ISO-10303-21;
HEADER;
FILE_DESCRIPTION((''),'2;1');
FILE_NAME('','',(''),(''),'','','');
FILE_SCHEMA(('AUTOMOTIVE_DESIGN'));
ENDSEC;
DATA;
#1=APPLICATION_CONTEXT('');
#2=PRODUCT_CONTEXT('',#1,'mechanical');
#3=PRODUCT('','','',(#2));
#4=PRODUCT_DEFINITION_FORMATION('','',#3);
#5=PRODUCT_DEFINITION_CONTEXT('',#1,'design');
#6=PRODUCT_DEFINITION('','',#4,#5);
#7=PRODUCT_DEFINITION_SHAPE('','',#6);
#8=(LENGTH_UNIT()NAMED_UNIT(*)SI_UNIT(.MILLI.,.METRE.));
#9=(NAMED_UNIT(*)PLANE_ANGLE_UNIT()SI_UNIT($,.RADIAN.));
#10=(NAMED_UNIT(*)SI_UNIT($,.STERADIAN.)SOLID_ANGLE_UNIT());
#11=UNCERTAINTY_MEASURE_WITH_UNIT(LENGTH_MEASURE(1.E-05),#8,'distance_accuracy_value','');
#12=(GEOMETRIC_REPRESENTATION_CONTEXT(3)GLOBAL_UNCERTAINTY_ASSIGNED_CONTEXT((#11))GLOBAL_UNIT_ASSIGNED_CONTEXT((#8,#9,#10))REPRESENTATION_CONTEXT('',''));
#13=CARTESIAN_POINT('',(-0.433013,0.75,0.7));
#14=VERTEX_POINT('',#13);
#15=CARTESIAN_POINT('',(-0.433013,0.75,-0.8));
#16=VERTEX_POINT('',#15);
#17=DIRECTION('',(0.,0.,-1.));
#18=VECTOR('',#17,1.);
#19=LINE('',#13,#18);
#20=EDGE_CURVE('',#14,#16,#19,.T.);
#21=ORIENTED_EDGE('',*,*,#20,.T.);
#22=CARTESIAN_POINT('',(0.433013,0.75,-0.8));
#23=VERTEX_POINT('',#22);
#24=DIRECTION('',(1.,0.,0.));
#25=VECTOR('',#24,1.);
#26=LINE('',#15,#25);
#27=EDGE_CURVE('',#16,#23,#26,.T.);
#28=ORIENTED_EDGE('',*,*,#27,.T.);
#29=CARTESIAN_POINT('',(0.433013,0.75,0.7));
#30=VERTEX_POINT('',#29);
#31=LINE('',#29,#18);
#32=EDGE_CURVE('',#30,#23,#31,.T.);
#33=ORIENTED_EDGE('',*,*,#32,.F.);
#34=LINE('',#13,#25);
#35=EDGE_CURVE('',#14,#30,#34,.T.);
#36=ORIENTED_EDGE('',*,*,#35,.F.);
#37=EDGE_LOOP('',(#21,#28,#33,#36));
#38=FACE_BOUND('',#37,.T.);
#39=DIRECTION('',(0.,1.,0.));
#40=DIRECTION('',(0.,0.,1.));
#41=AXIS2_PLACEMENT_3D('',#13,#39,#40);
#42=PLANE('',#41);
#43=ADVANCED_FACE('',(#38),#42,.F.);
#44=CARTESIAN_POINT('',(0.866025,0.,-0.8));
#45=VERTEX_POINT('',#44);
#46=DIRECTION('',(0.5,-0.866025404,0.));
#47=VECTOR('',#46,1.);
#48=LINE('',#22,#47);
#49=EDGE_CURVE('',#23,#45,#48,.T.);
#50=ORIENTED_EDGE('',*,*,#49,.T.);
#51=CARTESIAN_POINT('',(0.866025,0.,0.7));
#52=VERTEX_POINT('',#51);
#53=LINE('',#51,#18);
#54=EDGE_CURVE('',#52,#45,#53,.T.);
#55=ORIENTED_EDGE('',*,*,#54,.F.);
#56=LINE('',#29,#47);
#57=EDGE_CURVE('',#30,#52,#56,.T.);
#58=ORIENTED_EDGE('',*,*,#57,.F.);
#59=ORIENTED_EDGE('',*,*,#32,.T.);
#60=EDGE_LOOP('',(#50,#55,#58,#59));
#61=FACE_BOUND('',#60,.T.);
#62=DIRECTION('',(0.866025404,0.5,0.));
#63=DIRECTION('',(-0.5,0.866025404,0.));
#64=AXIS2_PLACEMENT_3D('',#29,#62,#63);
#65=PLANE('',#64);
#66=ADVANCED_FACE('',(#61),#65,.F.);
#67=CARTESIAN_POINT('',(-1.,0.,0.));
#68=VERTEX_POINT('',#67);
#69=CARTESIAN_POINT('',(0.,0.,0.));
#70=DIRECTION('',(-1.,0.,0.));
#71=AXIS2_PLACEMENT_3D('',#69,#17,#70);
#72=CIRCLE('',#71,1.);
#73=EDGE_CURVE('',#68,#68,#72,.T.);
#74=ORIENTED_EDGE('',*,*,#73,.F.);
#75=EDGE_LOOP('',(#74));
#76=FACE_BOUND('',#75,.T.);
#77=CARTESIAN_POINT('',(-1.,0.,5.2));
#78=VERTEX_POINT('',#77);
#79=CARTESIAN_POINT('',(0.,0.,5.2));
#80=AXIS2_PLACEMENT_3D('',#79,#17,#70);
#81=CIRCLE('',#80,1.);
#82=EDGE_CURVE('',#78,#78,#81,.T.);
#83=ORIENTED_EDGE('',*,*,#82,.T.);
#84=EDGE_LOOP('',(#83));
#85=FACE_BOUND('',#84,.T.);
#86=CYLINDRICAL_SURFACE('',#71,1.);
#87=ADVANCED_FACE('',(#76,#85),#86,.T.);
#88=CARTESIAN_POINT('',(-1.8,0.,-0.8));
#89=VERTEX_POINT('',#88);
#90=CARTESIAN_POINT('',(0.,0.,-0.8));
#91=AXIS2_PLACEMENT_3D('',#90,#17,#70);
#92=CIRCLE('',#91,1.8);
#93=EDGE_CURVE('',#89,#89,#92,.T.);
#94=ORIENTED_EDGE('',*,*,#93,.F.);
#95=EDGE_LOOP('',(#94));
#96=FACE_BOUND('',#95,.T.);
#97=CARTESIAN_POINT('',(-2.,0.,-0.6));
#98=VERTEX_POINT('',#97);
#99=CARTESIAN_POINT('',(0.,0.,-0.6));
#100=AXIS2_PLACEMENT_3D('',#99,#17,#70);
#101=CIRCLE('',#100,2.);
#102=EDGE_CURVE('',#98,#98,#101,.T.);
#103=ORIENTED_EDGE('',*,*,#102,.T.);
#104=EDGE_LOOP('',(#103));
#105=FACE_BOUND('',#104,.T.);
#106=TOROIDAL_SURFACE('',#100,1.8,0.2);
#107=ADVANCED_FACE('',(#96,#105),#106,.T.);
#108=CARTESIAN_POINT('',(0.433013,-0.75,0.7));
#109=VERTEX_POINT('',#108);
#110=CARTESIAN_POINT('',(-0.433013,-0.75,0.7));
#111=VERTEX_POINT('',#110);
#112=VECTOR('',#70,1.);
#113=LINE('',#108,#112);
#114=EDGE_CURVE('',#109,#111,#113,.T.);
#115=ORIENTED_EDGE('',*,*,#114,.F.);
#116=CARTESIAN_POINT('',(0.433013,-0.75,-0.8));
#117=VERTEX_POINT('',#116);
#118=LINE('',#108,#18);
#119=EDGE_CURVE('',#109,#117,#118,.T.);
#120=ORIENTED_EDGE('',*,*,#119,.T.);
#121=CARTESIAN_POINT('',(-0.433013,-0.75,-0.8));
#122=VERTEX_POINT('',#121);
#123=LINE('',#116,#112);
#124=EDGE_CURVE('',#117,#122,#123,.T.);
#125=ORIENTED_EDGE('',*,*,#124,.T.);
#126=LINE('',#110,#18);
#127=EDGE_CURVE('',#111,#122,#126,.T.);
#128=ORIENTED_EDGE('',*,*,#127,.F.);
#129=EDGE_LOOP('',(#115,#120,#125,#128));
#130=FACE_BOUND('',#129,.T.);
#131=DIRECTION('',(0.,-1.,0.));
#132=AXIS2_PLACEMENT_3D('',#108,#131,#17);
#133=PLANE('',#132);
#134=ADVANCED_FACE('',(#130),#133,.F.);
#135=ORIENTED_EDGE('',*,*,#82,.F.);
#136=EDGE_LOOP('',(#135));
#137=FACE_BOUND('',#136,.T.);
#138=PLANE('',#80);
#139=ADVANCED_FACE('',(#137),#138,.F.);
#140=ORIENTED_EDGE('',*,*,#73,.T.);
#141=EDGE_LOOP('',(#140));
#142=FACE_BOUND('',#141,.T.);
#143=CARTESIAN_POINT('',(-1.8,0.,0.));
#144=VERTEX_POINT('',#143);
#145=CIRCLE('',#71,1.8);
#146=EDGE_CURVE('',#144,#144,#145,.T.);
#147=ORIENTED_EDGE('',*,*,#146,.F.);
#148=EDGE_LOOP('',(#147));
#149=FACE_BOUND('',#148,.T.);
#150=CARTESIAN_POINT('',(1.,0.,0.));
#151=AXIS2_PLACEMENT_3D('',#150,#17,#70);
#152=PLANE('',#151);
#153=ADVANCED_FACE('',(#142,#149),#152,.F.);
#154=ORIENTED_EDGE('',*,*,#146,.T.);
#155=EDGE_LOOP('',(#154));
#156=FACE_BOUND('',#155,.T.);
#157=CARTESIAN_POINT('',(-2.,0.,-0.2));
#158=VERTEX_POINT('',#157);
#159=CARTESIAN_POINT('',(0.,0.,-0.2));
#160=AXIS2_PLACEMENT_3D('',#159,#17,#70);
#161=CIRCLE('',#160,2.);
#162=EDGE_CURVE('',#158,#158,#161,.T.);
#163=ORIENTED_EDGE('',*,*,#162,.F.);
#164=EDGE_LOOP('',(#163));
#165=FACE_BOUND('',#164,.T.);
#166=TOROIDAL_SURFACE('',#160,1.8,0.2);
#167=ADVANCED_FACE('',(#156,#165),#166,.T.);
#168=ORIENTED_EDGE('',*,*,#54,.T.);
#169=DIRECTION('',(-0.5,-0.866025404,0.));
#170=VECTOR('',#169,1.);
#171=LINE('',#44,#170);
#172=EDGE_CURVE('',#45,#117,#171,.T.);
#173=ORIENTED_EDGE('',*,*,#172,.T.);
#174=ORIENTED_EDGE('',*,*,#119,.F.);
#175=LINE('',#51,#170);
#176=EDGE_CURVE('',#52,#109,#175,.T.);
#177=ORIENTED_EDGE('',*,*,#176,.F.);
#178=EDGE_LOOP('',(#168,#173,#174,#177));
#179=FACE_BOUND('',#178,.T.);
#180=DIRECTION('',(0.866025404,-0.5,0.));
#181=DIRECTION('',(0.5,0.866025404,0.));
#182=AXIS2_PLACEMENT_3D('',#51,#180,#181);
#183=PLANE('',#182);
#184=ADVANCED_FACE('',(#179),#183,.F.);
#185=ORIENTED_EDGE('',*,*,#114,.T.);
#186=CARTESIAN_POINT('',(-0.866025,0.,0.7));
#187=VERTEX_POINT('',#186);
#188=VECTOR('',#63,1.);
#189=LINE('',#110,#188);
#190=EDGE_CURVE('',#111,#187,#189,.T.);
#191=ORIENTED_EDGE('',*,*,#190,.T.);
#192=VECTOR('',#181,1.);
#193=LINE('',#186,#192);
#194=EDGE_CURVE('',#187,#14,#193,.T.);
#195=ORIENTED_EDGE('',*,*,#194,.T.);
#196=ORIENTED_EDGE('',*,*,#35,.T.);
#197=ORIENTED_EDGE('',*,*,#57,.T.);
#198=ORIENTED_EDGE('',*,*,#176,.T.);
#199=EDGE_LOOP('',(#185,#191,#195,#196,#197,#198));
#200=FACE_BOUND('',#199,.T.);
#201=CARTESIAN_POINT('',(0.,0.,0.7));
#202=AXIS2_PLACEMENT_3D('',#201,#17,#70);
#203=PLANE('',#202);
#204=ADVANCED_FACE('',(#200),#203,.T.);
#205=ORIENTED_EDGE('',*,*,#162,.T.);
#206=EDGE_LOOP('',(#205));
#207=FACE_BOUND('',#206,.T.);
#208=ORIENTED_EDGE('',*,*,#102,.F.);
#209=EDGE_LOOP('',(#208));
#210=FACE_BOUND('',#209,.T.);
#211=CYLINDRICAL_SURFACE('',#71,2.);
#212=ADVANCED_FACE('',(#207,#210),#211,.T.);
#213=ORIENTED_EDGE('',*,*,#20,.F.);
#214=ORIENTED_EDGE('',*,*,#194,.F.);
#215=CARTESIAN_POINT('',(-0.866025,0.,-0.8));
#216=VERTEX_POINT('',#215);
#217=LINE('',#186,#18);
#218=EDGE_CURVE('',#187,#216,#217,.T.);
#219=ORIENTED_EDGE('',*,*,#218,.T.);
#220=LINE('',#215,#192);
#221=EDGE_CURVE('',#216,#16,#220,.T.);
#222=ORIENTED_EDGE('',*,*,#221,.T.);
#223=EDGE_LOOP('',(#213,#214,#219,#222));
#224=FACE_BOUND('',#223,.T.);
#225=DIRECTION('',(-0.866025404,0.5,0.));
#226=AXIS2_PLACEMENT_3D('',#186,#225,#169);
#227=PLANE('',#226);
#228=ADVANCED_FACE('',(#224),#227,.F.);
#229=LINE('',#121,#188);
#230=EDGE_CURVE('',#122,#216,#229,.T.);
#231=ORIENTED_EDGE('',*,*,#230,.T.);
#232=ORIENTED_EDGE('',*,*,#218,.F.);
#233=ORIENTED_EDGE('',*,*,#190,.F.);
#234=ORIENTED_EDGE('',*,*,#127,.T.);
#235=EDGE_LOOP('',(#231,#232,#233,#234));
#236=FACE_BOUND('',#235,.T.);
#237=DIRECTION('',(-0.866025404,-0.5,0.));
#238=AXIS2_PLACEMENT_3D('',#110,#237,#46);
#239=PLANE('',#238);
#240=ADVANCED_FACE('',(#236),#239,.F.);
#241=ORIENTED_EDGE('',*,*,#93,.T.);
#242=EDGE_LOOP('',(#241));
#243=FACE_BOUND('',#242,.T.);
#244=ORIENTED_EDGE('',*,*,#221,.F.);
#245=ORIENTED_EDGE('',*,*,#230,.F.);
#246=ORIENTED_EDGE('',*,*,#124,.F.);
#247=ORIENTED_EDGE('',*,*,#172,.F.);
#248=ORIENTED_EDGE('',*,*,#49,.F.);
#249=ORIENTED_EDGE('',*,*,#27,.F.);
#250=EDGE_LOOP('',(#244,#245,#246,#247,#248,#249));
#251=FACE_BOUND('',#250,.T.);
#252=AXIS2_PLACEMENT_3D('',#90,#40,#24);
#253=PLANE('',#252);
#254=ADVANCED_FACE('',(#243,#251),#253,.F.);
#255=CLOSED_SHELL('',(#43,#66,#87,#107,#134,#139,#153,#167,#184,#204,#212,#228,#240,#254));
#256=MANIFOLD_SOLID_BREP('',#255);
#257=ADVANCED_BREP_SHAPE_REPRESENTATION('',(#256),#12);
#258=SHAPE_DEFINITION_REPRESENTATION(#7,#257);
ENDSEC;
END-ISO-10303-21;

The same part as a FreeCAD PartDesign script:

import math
import FreeCAD as App
import Part
import Sketcher
Q = App.Units.Quantity

doc = App.newDocument("Part")
body = doc.addObject("PartDesign::Body", "Body")

sketch1 = body.newObject("Sketcher::SketchObject", "Sketch")
sketch1.AttachmentSupport = (doc.getObject("XZ_Plane"), [""])
sketch1.MapMode = "FlatFace"
sketch1.addGeometry(Part.LineSegment(App.Vector(0, 5.2, 0), App.Vector(1, 5.2, 0)), False)
sketch1.addGeometry(Part.LineSegment(App.Vector(1, 5.2, 0), App.Vector(1, 0, 0)), False)
sketch1.addGeometry(Part.LineSegment(App.Vector(1, 0, 0), App.Vector(1.8, 0, 0)), False)
sketch1.addGeometry(Part.ArcOfCircle(Part.Circle(App.Vector(1.8, -0.2, 0), App.Vector(0, 0, 1), 0.2), math.radians(0), math.radians(90)), False)
sketch1.addGeometry(Part.LineSegment(App.Vector(2, -0.2, 0), App.Vector(2, -0.6, 0)), False)
sketch1.addGeometry(Part.ArcOfCircle(Part.Circle(App.Vector(1.8, -0.6, 0), App.Vector(0, 0, 1), 0.2), math.radians(-90), math.radians(0)), False)
sketch1.addGeometry(Part.LineSegment(App.Vector(1.8, -0.8, 0), App.Vector(0, -0.8, 0)), False)
sketch1.addGeometry(Part.LineSegment(App.Vector(0, -0.8, 0), App.Vector(0, 5.2, 0)), False)
sketch1.addConstraint(Sketcher.Constraint("Coincident", 0, 2, 1, 1))
sketch1.addConstraint(Sketcher.Constraint("Coincident", 1, 2, 2, 1))
sketch1.addConstraint(Sketcher.Constraint("Tangent", 2, 2, 3, 2))
sketch1.addConstraint(Sketcher.Constraint("Tangent", 3, 1, 4, 1))
sketch1.addConstraint(Sketcher.Constraint("Tangent", 4, 2, 5, 2))
sketch1.addConstraint(Sketcher.Constraint("Tangent", 5, 1, 6, 1))
sketch1.addConstraint(Sketcher.Constraint("Coincident", 6, 2, 7, 1))
sketch1.addConstraint(Sketcher.Constraint("Coincident", 7, 2, 0, 1))
sketch1.addConstraint(Sketcher.Constraint("Horizontal", 0))
sketch1.addConstraint(Sketcher.Constraint("Vertical", 1))
sketch1.addConstraint(Sketcher.Constraint("Horizontal", 2))
sketch1.addConstraint(Sketcher.Constraint("Vertical", 4))
sketch1.addConstraint(Sketcher.Constraint("Horizontal", 6))
sketch1.addConstraint(Sketcher.Constraint("Vertical", 7))
sketch1.addConstraint(Sketcher.Constraint("Equal", 3, 5))
sketch1.addConstraint(Sketcher.Constraint("PointOnObject", 1, 2, -1))
sketch1.addConstraint(Sketcher.Constraint("PointOnObject", 6, 2, -2))
sketch1.addConstraint(Sketcher.Constraint("Radius", 3, Q("0.2 mm")))
sketch1.addConstraint(Sketcher.Constraint("DistanceX", 0, 1, 0, 2, Q("1 mm")))
sketch1.addConstraint(Sketcher.Constraint("DistanceY", 7, 1, 7, 2, Q("6 mm")))
sketch1.addConstraint(Sketcher.Constraint("DistanceX", 2, 1, 2, 2, Q("0.8 mm")))
sketch1.addConstraint(Sketcher.Constraint("DistanceY", 1, 2, 1, 1, Q("5.2 mm")))
revolution = body.newObject("PartDesign::Revolution", "Revolution")
revolution.Profile = sketch1
revolution.ReferenceAxis = (sketch1, ["V_Axis"])
revolution.Angle = 360

sketch2 = body.newObject("Sketcher::SketchObject", "Sketch001")
sketch2.AttachmentSupport = (doc.getObject("XY_Plane"), [""])
sketch2.MapMode = "FlatFace"
sketch2.AttachmentOffset = App.Placement(App.Vector(0, 0, -0.8), App.Rotation())
sketch2.addGeometry(Part.LineSegment(App.Vector(-0.9, 0, 0), App.Vector(-0.4, 0.8, 0)), False)
sketch2.addGeometry(Part.LineSegment(App.Vector(-0.4, 0.8, 0), App.Vector(0.4, 0.8, 0)), False)
sketch2.addGeometry(Part.LineSegment(App.Vector(0.4, 0.8, 0), App.Vector(0.9, 0, 0)), False)
sketch2.addGeometry(Part.LineSegment(App.Vector(0.9, 0, 0), App.Vector(0.4, -0.8, 0)), False)
sketch2.addGeometry(Part.LineSegment(App.Vector(0.4, -0.8, 0), App.Vector(-0.4, -0.8, 0)), False)
sketch2.addGeometry(Part.LineSegment(App.Vector(-0.4, -0.8, 0), App.Vector(-0.9, 0, 0)), False)
sketch2.addConstraint(Sketcher.Constraint("Coincident", 0, 2, 1, 1))
sketch2.addConstraint(Sketcher.Constraint("Coincident", 1, 2, 2, 1))
sketch2.addConstraint(Sketcher.Constraint("Coincident", 2, 2, 3, 1))
sketch2.addConstraint(Sketcher.Constraint("Coincident", 3, 2, 4, 1))
sketch2.addConstraint(Sketcher.Constraint("Coincident", 4, 2, 5, 1))
sketch2.addConstraint(Sketcher.Constraint("Coincident", 5, 2, 0, 1))
sketch2.addConstraint(Sketcher.Constraint("Horizontal", 1))
sketch2.addConstraint(Sketcher.Constraint("Horizontal", 4))
sketch2.addConstraint(Sketcher.Constraint("Symmetric", 0, 2, 3, 2, -1, 1))
sketch2.addConstraint(Sketcher.Constraint("Symmetric", 2, 2, 5, 2, -1, 1))
sketch2.addConstraint(Sketcher.Constraint("PointOnObject", 2, 2, -1))
sketch2.addConstraint(Sketcher.Constraint("Parallel", 2, 5))
sketch2.addConstraint(Sketcher.Constraint("Vertical", 1, 2, 3, 2))
sketch2.addConstraint(Sketcher.Constraint("Angle", 0, Q("60 deg")))
sketch2.addConstraint(Sketcher.Constraint("DistanceY", 3, 2, 1, 2, Q("1.5 mm")))
sketch2.addConstraint(Sketcher.Constraint("DistanceX", 1, 1, 1, 2, Q("0.866025 mm")))
pocket1 = body.newObject("PartDesign::Pocket", "Pocket")
pocket1.Profile = sketch2
pocket1.Length = 1.5
pocket1.Reversed = True

doc.recompute()
